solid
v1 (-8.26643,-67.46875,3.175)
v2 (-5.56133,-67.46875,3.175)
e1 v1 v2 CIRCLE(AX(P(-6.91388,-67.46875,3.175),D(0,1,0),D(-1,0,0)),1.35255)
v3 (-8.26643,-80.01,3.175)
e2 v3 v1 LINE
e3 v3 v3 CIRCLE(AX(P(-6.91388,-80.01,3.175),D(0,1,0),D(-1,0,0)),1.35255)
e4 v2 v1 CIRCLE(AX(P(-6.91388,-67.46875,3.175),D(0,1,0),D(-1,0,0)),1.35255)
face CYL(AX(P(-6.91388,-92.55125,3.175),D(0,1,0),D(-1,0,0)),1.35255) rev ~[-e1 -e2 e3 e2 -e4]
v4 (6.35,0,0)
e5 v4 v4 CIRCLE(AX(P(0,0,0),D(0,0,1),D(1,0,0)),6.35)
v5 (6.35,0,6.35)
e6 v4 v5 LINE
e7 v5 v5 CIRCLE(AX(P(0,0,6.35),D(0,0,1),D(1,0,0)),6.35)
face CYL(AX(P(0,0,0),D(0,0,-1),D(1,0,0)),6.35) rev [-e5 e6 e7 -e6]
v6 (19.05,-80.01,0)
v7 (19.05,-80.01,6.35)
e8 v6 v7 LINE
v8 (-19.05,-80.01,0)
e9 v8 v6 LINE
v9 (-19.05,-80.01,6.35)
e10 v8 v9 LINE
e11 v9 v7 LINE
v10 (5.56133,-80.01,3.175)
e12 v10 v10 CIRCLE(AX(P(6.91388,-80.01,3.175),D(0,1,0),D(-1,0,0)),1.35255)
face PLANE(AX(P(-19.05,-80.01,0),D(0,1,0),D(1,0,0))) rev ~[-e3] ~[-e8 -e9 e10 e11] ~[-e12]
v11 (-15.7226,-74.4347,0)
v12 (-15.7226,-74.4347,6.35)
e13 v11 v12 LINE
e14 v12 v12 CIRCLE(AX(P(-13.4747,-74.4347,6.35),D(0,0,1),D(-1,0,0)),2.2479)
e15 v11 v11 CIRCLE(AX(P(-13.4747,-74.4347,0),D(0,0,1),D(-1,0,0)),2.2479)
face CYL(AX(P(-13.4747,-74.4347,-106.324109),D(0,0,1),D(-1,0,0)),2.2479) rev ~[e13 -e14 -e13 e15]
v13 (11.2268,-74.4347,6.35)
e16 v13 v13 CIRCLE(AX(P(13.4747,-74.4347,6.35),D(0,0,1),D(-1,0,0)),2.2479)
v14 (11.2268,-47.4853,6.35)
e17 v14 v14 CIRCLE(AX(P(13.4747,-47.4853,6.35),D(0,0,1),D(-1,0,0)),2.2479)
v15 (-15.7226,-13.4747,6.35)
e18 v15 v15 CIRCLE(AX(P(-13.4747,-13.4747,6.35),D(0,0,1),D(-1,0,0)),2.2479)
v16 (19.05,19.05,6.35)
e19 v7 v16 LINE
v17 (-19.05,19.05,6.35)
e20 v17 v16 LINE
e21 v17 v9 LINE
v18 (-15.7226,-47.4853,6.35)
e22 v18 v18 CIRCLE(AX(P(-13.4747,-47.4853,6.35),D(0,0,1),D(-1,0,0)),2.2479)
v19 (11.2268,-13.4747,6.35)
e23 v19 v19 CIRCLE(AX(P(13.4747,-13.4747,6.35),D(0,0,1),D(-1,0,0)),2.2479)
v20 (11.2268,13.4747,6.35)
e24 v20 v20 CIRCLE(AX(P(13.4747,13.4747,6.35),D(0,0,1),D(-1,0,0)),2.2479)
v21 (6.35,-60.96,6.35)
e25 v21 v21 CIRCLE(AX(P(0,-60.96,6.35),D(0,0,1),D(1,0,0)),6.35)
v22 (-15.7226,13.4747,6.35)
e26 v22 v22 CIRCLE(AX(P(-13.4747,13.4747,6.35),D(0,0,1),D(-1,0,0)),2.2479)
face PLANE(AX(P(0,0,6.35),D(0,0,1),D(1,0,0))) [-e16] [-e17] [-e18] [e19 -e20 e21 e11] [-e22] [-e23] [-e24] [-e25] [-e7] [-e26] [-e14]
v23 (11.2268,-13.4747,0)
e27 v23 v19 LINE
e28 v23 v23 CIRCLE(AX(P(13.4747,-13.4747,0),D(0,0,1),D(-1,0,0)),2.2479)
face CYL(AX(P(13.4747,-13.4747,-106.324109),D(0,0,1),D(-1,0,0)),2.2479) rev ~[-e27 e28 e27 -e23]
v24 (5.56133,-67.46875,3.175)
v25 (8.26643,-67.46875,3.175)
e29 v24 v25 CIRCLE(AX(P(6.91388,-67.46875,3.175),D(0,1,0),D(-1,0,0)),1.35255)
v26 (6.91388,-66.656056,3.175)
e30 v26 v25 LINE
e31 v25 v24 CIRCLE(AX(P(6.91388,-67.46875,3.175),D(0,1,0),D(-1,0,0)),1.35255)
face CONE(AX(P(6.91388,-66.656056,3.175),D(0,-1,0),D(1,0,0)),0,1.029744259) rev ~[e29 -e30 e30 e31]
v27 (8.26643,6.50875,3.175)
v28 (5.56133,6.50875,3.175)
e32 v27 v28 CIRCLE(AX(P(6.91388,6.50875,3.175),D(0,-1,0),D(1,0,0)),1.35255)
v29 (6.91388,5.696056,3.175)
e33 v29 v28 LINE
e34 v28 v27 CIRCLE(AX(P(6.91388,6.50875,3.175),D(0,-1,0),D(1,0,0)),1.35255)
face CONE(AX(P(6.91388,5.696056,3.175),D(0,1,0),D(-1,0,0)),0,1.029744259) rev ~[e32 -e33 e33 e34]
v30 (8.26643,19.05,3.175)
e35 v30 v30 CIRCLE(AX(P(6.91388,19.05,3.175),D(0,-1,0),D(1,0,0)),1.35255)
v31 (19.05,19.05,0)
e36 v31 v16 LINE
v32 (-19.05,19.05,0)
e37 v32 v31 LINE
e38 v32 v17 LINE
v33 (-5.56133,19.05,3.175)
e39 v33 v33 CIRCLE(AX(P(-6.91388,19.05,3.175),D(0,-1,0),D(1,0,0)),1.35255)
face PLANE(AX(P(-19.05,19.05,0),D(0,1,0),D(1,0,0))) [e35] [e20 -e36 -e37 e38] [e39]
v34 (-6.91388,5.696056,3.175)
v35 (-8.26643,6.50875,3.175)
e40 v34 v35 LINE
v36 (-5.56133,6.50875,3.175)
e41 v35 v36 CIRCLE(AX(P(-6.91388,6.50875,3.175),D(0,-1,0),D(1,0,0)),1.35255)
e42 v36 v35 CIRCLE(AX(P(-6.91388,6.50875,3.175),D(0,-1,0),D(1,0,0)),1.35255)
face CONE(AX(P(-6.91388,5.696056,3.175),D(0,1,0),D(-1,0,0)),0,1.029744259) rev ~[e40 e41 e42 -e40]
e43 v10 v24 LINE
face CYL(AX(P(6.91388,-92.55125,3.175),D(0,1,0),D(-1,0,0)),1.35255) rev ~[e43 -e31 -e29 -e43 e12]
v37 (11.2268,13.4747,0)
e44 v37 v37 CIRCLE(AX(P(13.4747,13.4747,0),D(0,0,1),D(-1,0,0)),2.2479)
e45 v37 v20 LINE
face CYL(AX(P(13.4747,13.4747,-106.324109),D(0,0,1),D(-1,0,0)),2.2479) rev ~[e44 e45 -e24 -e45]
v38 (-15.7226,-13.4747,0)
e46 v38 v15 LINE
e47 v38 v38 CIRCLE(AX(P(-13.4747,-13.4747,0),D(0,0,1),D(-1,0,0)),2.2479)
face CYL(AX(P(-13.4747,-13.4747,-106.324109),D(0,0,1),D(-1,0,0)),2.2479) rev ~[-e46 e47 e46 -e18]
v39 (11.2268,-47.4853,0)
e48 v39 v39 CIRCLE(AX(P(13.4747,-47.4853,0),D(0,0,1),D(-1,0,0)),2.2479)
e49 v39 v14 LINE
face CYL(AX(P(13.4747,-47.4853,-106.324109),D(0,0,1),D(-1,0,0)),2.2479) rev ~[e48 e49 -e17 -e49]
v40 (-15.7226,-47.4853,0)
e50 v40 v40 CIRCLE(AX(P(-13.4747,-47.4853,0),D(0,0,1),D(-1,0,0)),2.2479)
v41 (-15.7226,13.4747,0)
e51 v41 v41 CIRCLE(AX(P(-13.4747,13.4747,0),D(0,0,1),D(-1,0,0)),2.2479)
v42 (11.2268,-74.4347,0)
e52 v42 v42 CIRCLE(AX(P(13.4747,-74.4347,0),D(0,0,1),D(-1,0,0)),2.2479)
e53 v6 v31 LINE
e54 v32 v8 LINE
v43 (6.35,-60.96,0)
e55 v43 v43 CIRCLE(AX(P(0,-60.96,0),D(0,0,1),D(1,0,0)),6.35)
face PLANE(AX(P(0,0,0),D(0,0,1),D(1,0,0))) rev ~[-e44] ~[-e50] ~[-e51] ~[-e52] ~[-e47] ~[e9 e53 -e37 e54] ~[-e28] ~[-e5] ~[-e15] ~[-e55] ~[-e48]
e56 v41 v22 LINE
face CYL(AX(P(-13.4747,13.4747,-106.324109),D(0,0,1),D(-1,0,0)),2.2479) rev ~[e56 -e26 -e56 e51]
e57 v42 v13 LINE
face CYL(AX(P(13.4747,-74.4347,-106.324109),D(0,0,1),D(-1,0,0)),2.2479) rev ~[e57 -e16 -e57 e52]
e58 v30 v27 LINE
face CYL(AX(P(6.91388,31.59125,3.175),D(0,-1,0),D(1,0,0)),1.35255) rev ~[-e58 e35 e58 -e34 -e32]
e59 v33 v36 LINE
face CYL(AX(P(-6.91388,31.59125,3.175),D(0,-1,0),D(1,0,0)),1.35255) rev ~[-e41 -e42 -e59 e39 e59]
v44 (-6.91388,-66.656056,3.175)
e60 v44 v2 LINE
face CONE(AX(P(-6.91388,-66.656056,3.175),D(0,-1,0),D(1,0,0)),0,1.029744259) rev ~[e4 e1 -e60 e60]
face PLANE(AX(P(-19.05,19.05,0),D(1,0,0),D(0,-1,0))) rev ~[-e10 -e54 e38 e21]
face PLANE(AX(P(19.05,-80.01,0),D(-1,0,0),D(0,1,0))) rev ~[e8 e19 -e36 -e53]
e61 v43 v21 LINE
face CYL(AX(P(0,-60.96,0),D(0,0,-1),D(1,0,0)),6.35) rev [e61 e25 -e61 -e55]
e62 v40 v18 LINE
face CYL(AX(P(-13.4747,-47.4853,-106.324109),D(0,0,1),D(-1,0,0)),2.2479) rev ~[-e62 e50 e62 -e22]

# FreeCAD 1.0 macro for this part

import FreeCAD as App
import Part
import Sketcher
Q = App.Units.Quantity

doc = App.newDocument("Part")
body = doc.addObject("PartDesign::Body", "Body")

# Sketch on XY plane
sketch1 = body.newObject("Sketcher::SketchObject", "Sketch")
sketch1.AttachmentSupport = (doc.getObject("XY_Plane"), [""])
sketch1.MapMode = "FlatFace"
sketch1.addGeometry([
    Part.LineSegment(App.Vector(-19, 19, 0), App.Vector(-19, -80, 0)),  # 0
    Part.LineSegment(App.Vector(-19, -80, 0), App.Vector(19, -80, 0)),  # 1
    Part.LineSegment(App.Vector(19, -80, 0), App.Vector(19, 19, 0)),  # 2
    Part.LineSegment(App.Vector(19, 19, 0), App.Vector(-19, 19, 0)),  # 3
    Part.Circle(App.Vector(0, -61, 0), App.Vector(0, 0, 1), 6),  # 4
    Part.Circle(App.Vector(0, 0, 0), App.Vector(0, 0, 1), 6),  # 5
], False)
sketch1.addConstraint([
    Sketcher.Constraint("Coincident", 0, 2, 1, 1),
    Sketcher.Constraint("Coincident", 1, 2, 2, 1),
    Sketcher.Constraint("Coincident", 2, 2, 3, 1),
    Sketcher.Constraint("Coincident", 3, 2, 0, 1),
    Sketcher.Constraint("Vertical", 0),
    Sketcher.Constraint("Horizontal", 1),
    Sketcher.Constraint("Vertical", 2),
    Sketcher.Constraint("Horizontal", 3),
    Sketcher.Constraint("Coincident", 5, 3, -1, 1),
    Sketcher.Constraint("Equal", 4, 5),
    Sketcher.Constraint("PointOnObject", 4, 3, -2),
    Sketcher.Constraint("Diameter", 4, Q("0.5 in")),
    Sketcher.Constraint("DistanceX", 1, 1, 1, 2, Q("1.5 in")),
    Sketcher.Constraint("DistanceY", 0, 2, 0, 1, Q("3.9 in")),
    Sketcher.Constraint("DistanceY", 4, 3, -1, 1, Q("2.4 in")),
    Sketcher.Constraint("DistanceX", 0, 2, -1, 1, Q("0.75 in")),
    Sketcher.Constraint("DistanceY", 0, 2, -1, 1, Q("3.15 in")),
])
pad1 = body.newObject("PartDesign::Pad", "Pad")
pad1.Profile = sketch1
pad1.Length = Q("0.25 in")

# Sketch on XY plane
sketch2 = body.newObject("Sketcher::SketchObject", "Sketch001")
sketch2.AttachmentSupport = (doc.getObject("XY_Plane"), [""])
sketch2.MapMode = "FlatFace"
sketch2.addGeometry([
    Part.Circle(App.Vector(-13.5, 13.5, 0), App.Vector(0, 0, 1), 2.2),  # 0
    Part.Circle(App.Vector(13.5, 13.5, 0), App.Vector(0, 0, 1), 2.2),  # 1
    Part.Circle(App.Vector(13.5, -13.5, 0), App.Vector(0, 0, 1), 2.2),  # 2
    Part.Circle(App.Vector(-13.5, -13.5, 0), App.Vector(0, 0, 1), 2.2),  # 3
    Part.Circle(App.Vector(-13.5, -47.5, 0), App.Vector(0, 0, 1), 2.2),  # 4
    Part.Circle(App.Vector(13.5, -47.5, 0), App.Vector(0, 0, 1), 2.2),  # 5
    Part.Circle(App.Vector(13.5, -74.4, 0), App.Vector(0, 0, 1), 2.2),  # 6
    Part.Circle(App.Vector(-13.5, -74.4, 0), App.Vector(0, 0, 1), 2.2),  # 7
], False)
sketch2.addConstraint([
    Sketcher.Constraint("Equal", 0, 1),
    Sketcher.Constraint("Equal", 1, 2),
    Sketcher.Constraint("Equal", 2, 3),
    Sketcher.Constraint("Equal", 3, 4),
    Sketcher.Constraint("Equal", 4, 5),
    Sketcher.Constraint("Equal", 5, 6),
    Sketcher.Constraint("Equal", 6, 7),
    Sketcher.Constraint("Symmetric", 0, 3, 2, 3, -1, 1),
    Sketcher.Constraint("Symmetric", 1, 3, 3, 3, -1, 1),
    Sketcher.Constraint("Symmetric", 0, 3, 1, 3, -2),
    Sketcher.Constraint("Symmetric", 4, 3, 5, 3, -2),
    Sketcher.Constraint("Symmetric", 6, 3, 7, 3, -2),
    Sketcher.Constraint("Vertical", 3, 3, 4, 3),
    Sketcher.Constraint("Vertical", 5, 3, 6, 3),
    Sketcher.Constraint("Diameter", 0, Q("0.177 in")),
    Sketcher.Constraint("DistanceY", 4, 3, 0, 3, Q("2.4 in")),
    Sketcher.Constraint("DistanceY", 6, 3, 2, 3, Q("2.4 in")),
    Sketcher.Constraint("DistanceX", 0, 3, 1, 3, Q("1.061 in")),
    Sketcher.Constraint("DistanceY", 2, 3, 1, 3, Q("1.061 in")),
])
doc.recompute()
hole = body.newObject("PartDesign::Hole", "Hole")
hole.Profile = sketch2
hole.ThreadType = "None"
hole.Diameter = Q("0.177 in")
hole.DepthType = "ThroughAll"
hole.Reversed = True

# Sketch on XZ plane
sketch3 = body.newObject("Sketcher::SketchObject", "Sketch002")
sketch3.AttachmentSupport = (doc.getObject("XZ_Plane"), [""])
sketch3.MapMode = "FlatFace"
sketch3.AttachmentOffset = App.Placement(App.Vector(0, 0, -0.75 * 25.4), App.Rotation())
sketch3.addGeometry([
    Part.Circle(App.Vector(6.9, 3.2, 0), App.Vector(0, 0, 1), 1.4),
    Part.Circle(App.Vector(-6.9, 3.2, 0), App.Vector(0, 0, 1), 1.4),
], False)
sketch3.addConstraint([
    Sketcher.Constraint("Equal", 0, 1),
    Sketcher.Constraint("Symmetric", 0, 3, 1, 3, -2),
    Sketcher.Constraint("Diameter", 0, Q("0.1065 in")),
    Sketcher.Constraint("DistanceY", -1, 1, 0, 3, Q("0.125 in")),
    Sketcher.Constraint("DistanceX", -1, 1, 0, 3, Q("0.2722 in")),
])
doc.recompute()
hole2 = body.newObject("PartDesign::Hole", "Hole001")
hole2.Profile = sketch3
hole2.ThreadType = "None"
hole2.Diameter = Q("0.1065 in")
hole2.DepthType = "Dimension"
hole2.Depth = 12.54125
hole2.DrillPoint = "Angled"
hole2.DrillPointAngle = 118
hole2.Reversed = True

# Sketch on XZ plane
sketch4 = body.newObject("Sketcher::SketchObject", "Sketch003")
sketch4.AttachmentSupport = (doc.getObject("XZ_Plane"), [""])
sketch4.MapMode = "FlatFace"
sketch4.AttachmentOffset = App.Placement(App.Vector(0, 0, 3.15 * 25.4), App.Rotation())
sketch4.addGeometry([
    Part.Circle(App.Vector(6.9, 3.2, 0), App.Vector(0, 0, 1), 1.4),
    Part.Circle(App.Vector(-6.9, 3.2, 0), App.Vector(0, 0, 1), 1.4),
], False)
sketch4.addConstraint([
    Sketcher.Constraint("Equal", 0, 1),
    Sketcher.Constraint("Symmetric", 0, 3, 1, 3, -2),
    Sketcher.Constraint("Diameter", 0, Q("0.1065 in")),
    Sketcher.Constraint("DistanceY", -1, 1, 0, 3, Q("0.125 in")),
    Sketcher.Constraint("DistanceX", -1, 1, 0, 3, Q("0.2722 in")),
])
doc.recompute()
hole3 = body.newObject("PartDesign::Hole", "Hole002")
hole3.Profile = sketch4
hole3.ThreadType = "None"
hole3.Diameter = Q("0.1065 in")
hole3.DepthType = "Dimension"
hole3.Depth = 12.54125
hole3.DrillPoint = "Angled"
hole3.DrillPointAngle = 118

doc.recompute()
